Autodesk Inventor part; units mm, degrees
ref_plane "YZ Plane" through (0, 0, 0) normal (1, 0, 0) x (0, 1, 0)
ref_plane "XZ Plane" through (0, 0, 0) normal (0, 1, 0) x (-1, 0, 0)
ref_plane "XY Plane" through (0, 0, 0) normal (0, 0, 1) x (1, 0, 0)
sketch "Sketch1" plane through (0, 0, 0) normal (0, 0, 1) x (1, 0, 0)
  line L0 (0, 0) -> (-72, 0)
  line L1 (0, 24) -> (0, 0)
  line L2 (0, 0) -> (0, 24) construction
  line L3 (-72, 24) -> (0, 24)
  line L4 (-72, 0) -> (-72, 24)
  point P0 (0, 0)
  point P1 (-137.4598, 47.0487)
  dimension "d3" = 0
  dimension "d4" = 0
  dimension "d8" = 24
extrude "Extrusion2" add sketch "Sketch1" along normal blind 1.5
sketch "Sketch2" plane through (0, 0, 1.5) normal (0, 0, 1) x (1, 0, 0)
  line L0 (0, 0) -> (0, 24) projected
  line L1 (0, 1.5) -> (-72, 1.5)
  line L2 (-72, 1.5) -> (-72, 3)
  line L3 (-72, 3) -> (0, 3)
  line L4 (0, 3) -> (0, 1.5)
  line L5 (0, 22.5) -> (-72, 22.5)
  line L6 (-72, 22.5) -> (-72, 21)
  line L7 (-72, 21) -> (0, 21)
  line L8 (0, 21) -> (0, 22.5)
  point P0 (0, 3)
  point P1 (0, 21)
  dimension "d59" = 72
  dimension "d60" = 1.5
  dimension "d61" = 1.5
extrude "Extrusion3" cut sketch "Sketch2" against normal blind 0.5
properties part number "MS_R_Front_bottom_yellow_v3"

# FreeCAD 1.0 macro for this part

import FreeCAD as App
import Part
import Sketcher

doc = App.newDocument("Part")
params = doc.addObject("Spreadsheet::Sheet", "Params")
for row, (alias, value) in enumerate([
    ("sketch1_height", "24 mm"),
    ("sketch1_width", "72 mm"),
    ("pad1_length", "1.5 mm"),
    ("sketch2_width", "72 mm"),
    ("sketch2_height", "1.5 mm"),
    ("pocket1_length", "0.5 mm"),
], start=1):
    params.set(f"A{row}", alias)
    params.set(f"B{row}", "=" + value)
    params.setAlias(f"B{row}", alias)

body = doc.addObject("PartDesign::Body", "Body")

# Sketch on XY plane
sketch1 = body.newObject("Sketcher::SketchObject", "Sketch")
sketch1.AttachmentSupport = (doc.getObject("XY_Plane"), [""])
sketch1.MapMode = "FlatFace"
sketch1.addGeometry([
    Part.LineSegment(App.Vector(-72, 0, 0), App.Vector(0, 0, 0)),
    Part.LineSegment(App.Vector(0, 0, 0), App.Vector(0, 24, 0)),
    Part.LineSegment(App.Vector(0, 24, 0), App.Vector(-72, 24, 0)),
    Part.LineSegment(App.Vector(-72, 24, 0), App.Vector(-72, 0, 0)),
], False)
sketch1.addConstraint([
    Sketcher.Constraint("Coincident", 0, 2, 1, 1),
    Sketcher.Constraint("Coincident", 1, 2, 2, 1),
    Sketcher.Constraint("Coincident", 2, 2, 3, 1),
    Sketcher.Constraint("Coincident", 3, 2, 0, 1),
    Sketcher.Constraint("Horizontal", 0),
    Sketcher.Constraint("Vertical", 1),
    Sketcher.Constraint("Horizontal", 2),
    Sketcher.Constraint("Vertical", 3),
    Sketcher.Constraint("Coincident", 0, 2, -1, 1),
    Sketcher.Constraint("DistanceY", 1, 1, 1, 2, 24.0),
    Sketcher.Constraint("DistanceX", 0, 1, 0, 2, 72.0),
])
sketch1.setExpression("Constraints[9]", "Params.sketch1_height")
sketch1.setExpression("Constraints[10]", "Params.sketch1_width")
pad1 = body.newObject("PartDesign::Pad", "Pad")
pad1.Profile = sketch1
pad1.setExpression("Length", "Params.pad1_length")

# Sketch on XY plane
sketch2 = body.newObject("Sketcher::SketchObject", "Sketch001")
sketch2.AttachmentSupport = (doc.getObject("XY_Plane"), [""])
sketch2.MapMode = "FlatFace"
sketch2.AttachmentOffset = App.Placement(App.Vector(0, 0, 1.5), App.Rotation())
sketch2.addGeometry([
    Part.LineSegment(App.Vector(-72, 1.5, 0), App.Vector(0, 1.5, 0)),  # 0
    Part.LineSegment(App.Vector(0, 1.5, 0), App.Vector(0, 3, 0)),  # 1
    Part.LineSegment(App.Vector(0, 3, 0), App.Vector(-72, 3, 0)),  # 2
    Part.LineSegment(App.Vector(-72, 3, 0), App.Vector(-72, 1.5, 0)),  # 3
    Part.LineSegment(App.Vector(-72, 21, 0), App.Vector(0, 21, 0)),  # 4
    Part.LineSegment(App.Vector(0, 21, 0), App.Vector(0, 22.5, 0)),  # 5
    Part.LineSegment(App.Vector(0, 22.5, 0), App.Vector(-72, 22.5, 0)),  # 6
    Part.LineSegment(App.Vector(-72, 22.5, 0), App.Vector(-72, 21, 0)),  # 7
], False)
sketch2.addConstraint([
    Sketcher.Constraint("Coincident", 0, 2, 1, 1),
    Sketcher.Constraint("Coincident", 1, 2, 2, 1),
    Sketcher.Constraint("Coincident", 2, 2, 3, 1),
    Sketcher.Constraint("Coincident", 3, 2, 0, 1),
    Sketcher.Constraint("Coincident", 4, 2, 5, 1),
    Sketcher.Constraint("Coincident", 5, 2, 6, 1),
    Sketcher.Constraint("Coincident", 6, 2, 7, 1),
    Sketcher.Constraint("Coincident", 7, 2, 4, 1),
    Sketcher.Constraint("Horizontal", 0),
    Sketcher.Constraint("Vertical", 1),
    Sketcher.Constraint("Horizontal", 2),
    Sketcher.Constraint("Vertical", 3),
    Sketcher.Constraint("Horizontal", 4),
    Sketcher.Constraint("Vertical", 5),
    Sketcher.Constraint("Horizontal", 6),
    Sketcher.Constraint("Vertical", 7),
    Sketcher.Constraint("PointOnObject", 0, 2, -2),
    Sketcher.Constraint("PointOnObject", 4, 2, -2),
    Sketcher.Constraint("Vertical", 3, 2, 6, 2),
    Sketcher.Constraint("Equal", 3, 5),
    Sketcher.Constraint("DistanceX", 0, 1, 0, 2, 72.0),
    Sketcher.Constraint("DistanceY", 1, 1, 1, 2, 1.5),
    Sketcher.Constraint("DistanceY", -1, 1, 0, 2, 1.5),
    Sketcher.Constraint("DistanceY", -1, 1, 4, 2, 21.0),
])
sketch2.setExpression("Constraints[20]", "Params.sketch2_width")
sketch2.setExpression("Constraints[21]", "Params.sketch2_height")
pocket1 = body.newObject("PartDesign::Pocket", "Pocket")
pocket1.Profile = sketch2
pocket1.setExpression("Length", "Params.pocket1_length")

doc.recompute()
